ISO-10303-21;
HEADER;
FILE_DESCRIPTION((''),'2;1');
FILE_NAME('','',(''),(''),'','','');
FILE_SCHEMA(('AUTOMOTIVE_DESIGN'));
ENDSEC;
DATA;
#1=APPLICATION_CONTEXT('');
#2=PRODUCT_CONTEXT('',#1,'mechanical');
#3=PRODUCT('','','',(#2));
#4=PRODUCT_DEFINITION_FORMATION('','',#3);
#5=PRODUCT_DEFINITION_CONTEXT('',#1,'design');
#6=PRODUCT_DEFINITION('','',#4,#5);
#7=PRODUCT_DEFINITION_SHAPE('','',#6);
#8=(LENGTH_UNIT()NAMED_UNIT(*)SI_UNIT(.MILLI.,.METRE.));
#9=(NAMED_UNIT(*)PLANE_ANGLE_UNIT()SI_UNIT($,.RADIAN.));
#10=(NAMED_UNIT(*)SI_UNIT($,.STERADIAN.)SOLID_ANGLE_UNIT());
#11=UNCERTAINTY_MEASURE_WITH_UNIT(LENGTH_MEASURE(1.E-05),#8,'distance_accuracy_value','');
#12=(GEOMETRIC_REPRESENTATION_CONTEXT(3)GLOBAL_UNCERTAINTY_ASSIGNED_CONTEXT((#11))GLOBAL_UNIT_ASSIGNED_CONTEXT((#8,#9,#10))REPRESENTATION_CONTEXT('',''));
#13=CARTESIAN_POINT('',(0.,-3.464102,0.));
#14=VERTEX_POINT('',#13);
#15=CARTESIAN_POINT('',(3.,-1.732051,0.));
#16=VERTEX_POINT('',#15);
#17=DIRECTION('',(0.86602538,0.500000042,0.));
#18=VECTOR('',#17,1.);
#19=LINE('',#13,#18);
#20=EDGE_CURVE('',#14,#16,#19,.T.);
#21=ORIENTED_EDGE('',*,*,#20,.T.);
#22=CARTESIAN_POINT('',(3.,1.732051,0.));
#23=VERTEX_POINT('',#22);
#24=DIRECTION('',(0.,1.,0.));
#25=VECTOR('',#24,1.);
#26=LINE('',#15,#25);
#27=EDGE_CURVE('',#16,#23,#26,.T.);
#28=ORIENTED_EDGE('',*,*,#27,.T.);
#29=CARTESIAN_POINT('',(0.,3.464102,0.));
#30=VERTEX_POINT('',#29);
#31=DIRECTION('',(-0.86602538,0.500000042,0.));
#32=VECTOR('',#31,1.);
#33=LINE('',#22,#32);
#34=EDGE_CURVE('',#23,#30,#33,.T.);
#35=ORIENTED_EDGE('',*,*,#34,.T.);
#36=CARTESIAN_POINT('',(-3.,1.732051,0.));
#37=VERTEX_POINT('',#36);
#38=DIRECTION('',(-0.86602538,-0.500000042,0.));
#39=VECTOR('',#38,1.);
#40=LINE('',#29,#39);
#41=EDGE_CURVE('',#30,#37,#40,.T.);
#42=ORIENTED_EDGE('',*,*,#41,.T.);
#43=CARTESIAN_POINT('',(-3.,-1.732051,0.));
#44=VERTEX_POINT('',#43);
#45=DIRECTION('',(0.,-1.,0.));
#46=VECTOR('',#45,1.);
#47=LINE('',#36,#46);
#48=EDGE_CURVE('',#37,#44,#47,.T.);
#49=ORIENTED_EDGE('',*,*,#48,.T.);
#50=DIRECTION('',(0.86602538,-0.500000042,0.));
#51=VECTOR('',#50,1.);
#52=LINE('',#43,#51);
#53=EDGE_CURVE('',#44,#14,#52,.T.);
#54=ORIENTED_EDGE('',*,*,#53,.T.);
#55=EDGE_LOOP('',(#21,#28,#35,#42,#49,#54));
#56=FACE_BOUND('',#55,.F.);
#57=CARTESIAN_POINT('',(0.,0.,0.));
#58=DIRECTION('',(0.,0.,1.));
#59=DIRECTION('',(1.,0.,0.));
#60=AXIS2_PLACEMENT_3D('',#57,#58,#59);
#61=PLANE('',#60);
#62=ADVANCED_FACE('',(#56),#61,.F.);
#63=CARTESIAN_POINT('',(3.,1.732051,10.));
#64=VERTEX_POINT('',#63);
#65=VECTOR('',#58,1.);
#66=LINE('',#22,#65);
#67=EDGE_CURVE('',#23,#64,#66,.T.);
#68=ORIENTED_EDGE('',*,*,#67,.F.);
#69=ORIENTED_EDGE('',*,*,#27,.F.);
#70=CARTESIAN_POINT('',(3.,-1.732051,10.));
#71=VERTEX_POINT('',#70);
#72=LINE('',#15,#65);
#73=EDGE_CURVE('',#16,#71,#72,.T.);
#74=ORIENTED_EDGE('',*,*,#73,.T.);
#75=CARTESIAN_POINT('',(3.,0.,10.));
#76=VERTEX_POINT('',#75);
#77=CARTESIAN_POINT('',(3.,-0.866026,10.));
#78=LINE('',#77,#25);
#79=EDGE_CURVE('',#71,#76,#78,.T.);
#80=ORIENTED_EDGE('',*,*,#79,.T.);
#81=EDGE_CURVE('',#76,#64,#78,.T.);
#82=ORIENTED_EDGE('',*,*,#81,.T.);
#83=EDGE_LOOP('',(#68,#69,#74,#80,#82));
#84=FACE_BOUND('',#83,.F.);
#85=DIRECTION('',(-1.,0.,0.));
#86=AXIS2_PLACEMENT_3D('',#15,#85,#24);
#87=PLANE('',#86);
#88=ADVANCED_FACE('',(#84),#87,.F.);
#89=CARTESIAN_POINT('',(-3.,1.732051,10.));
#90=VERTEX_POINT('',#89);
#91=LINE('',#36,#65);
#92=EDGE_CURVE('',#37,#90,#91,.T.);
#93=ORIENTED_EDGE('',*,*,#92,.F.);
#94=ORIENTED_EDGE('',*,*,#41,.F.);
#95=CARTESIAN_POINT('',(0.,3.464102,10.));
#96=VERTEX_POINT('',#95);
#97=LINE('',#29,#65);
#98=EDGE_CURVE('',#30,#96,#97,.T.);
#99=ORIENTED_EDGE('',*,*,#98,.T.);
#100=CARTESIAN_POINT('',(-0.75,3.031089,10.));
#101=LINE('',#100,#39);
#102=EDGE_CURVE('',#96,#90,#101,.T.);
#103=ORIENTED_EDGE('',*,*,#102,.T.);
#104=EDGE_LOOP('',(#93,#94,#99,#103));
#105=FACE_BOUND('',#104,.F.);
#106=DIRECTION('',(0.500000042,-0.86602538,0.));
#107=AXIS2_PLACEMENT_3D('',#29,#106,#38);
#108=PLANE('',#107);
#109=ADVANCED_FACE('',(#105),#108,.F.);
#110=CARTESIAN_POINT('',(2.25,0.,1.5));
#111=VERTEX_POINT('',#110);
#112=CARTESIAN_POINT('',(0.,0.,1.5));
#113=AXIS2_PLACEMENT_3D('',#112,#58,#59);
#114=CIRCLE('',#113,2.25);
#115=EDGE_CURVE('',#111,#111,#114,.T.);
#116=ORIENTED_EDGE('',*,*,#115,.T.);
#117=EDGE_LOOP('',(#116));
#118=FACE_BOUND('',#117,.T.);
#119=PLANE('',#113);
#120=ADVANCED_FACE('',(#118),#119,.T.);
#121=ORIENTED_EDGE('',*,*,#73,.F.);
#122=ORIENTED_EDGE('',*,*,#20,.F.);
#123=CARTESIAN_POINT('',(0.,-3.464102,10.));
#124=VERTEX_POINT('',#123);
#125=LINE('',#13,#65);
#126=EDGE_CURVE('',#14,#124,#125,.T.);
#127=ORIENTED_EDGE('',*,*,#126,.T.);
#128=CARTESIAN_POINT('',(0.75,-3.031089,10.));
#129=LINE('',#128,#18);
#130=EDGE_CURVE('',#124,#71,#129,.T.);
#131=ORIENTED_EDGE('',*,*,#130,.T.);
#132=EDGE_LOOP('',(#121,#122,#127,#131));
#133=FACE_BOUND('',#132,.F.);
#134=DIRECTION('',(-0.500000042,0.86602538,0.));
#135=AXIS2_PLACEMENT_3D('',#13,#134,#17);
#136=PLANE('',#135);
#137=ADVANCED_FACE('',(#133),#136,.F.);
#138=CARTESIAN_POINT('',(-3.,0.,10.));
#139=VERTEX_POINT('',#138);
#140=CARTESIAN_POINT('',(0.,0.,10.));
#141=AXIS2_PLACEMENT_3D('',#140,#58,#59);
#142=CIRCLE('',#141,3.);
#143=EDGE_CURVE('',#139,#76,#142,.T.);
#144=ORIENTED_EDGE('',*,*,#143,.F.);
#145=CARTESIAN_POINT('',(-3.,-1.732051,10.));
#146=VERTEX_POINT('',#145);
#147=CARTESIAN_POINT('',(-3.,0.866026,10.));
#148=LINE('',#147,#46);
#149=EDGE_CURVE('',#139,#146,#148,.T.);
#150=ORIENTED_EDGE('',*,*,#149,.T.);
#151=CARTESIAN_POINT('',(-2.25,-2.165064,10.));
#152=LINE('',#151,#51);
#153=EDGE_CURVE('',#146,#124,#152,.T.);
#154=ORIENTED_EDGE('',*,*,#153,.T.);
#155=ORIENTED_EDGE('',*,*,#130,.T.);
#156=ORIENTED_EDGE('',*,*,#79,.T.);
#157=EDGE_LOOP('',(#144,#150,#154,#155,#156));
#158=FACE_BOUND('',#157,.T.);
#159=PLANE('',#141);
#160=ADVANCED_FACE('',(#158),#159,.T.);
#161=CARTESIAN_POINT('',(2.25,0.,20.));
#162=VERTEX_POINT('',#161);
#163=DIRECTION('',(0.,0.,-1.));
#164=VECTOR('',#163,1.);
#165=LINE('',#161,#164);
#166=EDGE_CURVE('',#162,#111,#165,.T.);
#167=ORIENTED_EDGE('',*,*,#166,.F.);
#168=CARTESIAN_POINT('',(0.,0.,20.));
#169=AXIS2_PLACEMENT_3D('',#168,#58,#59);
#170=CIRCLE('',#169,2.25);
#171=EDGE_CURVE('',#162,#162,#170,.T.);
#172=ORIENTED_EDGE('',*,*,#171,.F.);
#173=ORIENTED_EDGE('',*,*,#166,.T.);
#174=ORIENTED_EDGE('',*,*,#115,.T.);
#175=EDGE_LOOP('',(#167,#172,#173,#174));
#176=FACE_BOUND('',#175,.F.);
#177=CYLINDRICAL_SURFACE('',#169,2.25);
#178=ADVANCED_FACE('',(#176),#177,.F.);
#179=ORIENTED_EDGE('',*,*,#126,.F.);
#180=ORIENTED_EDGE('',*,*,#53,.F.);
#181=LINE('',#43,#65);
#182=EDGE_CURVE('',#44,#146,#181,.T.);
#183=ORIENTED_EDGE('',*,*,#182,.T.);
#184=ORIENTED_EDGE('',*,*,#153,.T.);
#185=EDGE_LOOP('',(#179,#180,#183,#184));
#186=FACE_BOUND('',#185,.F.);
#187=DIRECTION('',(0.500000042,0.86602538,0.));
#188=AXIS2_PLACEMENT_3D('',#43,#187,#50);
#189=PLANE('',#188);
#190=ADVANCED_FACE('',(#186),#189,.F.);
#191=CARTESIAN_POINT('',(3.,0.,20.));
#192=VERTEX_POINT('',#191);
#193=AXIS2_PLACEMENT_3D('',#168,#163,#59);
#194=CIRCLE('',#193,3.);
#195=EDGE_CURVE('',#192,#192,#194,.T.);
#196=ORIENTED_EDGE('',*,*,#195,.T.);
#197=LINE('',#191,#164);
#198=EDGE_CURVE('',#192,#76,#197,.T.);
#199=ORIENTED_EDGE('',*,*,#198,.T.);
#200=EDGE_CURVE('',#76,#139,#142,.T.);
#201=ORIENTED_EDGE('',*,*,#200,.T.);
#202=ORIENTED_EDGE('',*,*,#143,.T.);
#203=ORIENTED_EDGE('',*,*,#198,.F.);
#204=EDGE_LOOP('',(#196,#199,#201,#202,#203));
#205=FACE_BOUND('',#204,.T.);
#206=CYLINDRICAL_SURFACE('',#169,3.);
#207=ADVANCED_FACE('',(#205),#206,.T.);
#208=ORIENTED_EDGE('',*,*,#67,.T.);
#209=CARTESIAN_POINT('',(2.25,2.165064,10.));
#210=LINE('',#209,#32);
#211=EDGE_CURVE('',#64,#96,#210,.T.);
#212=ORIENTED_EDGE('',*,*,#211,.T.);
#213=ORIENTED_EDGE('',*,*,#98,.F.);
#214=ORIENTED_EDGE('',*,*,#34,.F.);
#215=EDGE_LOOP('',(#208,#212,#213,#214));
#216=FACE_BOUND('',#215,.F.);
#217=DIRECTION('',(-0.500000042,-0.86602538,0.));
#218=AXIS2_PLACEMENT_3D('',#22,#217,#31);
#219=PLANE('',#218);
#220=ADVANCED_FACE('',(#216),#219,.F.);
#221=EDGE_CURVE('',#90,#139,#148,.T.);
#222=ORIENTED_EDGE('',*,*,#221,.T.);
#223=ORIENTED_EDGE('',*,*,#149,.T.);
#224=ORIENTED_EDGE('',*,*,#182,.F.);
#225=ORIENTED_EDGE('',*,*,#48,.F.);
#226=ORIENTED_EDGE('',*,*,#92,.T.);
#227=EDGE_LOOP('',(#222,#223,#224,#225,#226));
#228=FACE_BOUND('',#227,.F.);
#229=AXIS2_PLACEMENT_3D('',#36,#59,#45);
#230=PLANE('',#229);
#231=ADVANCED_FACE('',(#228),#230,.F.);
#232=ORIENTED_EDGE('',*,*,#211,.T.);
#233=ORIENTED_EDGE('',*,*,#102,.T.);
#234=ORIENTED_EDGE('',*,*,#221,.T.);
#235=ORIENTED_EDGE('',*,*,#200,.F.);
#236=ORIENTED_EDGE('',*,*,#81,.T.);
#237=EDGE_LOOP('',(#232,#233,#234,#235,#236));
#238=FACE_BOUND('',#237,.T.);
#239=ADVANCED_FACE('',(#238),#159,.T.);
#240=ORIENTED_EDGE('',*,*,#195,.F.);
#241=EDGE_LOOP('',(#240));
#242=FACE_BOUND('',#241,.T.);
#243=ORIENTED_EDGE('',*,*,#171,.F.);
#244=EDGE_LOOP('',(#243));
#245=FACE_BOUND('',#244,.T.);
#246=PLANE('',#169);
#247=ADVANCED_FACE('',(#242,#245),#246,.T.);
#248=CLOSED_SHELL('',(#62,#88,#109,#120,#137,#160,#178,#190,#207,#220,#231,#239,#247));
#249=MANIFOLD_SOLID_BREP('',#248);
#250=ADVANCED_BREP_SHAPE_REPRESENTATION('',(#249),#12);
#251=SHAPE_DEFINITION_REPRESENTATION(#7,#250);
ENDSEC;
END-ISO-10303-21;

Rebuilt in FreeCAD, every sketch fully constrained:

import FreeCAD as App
import Part
import Sketcher
from FreeCAD import Vector
Q = App.Units.Quantity


def add_polygon(sketch, points):
    """Adds a closed chain of lines whose ends are joined by coincident constraints."""
    first, n = sketch.GeometryCount, len(points)
    for a, b in zip(points, points[1:] + points[:1]):
        sketch.addGeometry(Part.LineSegment(App.Vector(*a, 0), App.Vector(*b, 0)), False)
    for i in range(n):
        sketch.addConstraint(Sketcher.Constraint("Coincident", first + i, 2, first + (i + 1) % n, 1))

doc = App.newDocument("Part")
params = doc.addObject("Spreadsheet::Sheet", "Params")
for row, (alias, value) in enumerate([
    ("pad1_length", "20 mm"),
    ("sketch2_diameter", "6 mm"),
    ("sketch2_width", "8 mm"),
    ("pocket1_length", "10 mm"),
    ("sketch3_diameter", "4.5 mm"),
    ("pocket2_length", "18.5 mm"),
], start=1):
    params.set(f"A{row}", alias)
    params.set(f"B{row}", "=" + value)
    params.setAlias(f"B{row}", alias)

body = doc.addObject("PartDesign::Body", "Body")

sketch1 = body.newObject("Sketcher::SketchObject", "Sketch")
sketch1.AttachmentSupport = (doc.getObject("XY_Plane"), [""])
sketch1.MapMode = "FlatFace"
add_polygon(sketch1, [(0, -3.5), (3, -1.7), (3, 1.7), (0, 3.5), (-3, 1.7), (-3, -1.7)])
sketch1.addConstraint([
    Sketcher.Constraint("Vertical", 1),
    Sketcher.Constraint("Vertical", 4),
    Sketcher.Constraint("Symmetric", 0, 2, 3, 2, -1, 1),
    Sketcher.Constraint("Symmetric", 2, 2, 5, 2, -1, 1),
    Sketcher.Constraint("PointOnObject", 2, 2, -2),
    Sketcher.Constraint("Parallel", 2, 5),
    Sketcher.Constraint("Horizontal", 1, 2, 3, 2),
    Sketcher.Constraint("Angle", 0, Q("30.000003 deg")),
    Sketcher.Constraint("DistanceX", -1, 1, 0, 2, 3.0),
    Sketcher.Constraint("DistanceY", 1, 1, 1, 2, 3.464102),
])
pad1 = body.newObject("PartDesign::Pad", "Pad")
pad1.Profile = sketch1
pad1.setExpression("Length", "Params.pad1_length")

sketch2 = body.newObject("Sketcher::SketchObject", "Sketch001")
sketch2.AttachmentSupport = (doc.getObject("XY_Plane"), [""])
sketch2.MapMode = "FlatFace"
sketch2.AttachmentOffset = App.Placement(Vector(0, 0, 20), App.Rotation())
add_polygon(sketch2, [(-4, 4), (-4, -4), (4, -4), (4, 4)])
sketch2.addGeometry(Part.Circle(Vector(0, 0, 0), Vector(0, 0, 1), 3), False)
sketch2.addConstraint([
    Sketcher.Constraint("Vertical", 0),
    Sketcher.Constraint("Horizontal", 1),
    Sketcher.Constraint("Vertical", 2),
    Sketcher.Constraint("Horizontal", 3),
    Sketcher.Constraint("Coincident", 4, 3, -1, 1),
    Sketcher.Constraint("Symmetric", 0, 2, 2, 2, -1, 1),
    Sketcher.Constraint("Equal", 3, 0),
    Sketcher.Constraint("Diameter", 4, 6.0),
    Sketcher.Constraint("DistanceX", 1, 1, 1, 2, 8.0),
])
sketch2.setExpression("Constraints[11]", "Params.sketch2_diameter")
sketch2.setExpression("Constraints[12]", "Params.sketch2_width")
pocket1 = body.newObject("PartDesign::Pocket", "Pocket")
pocket1.Profile = sketch2
pocket1.setExpression("Length", "Params.pocket1_length")

sketch3 = body.newObject("Sketcher::SketchObject", "Sketch002")
sketch3.AttachmentSupport = (doc.getObject("XY_Plane"), [""])
sketch3.MapMode = "FlatFace"
sketch3.AttachmentOffset = App.Placement(Vector(0, 0, 20), App.Rotation())
sketch3.addGeometry(Part.Circle(Vector(0, 0, 0), Vector(0, 0, 1), 2.2), False)
sketch3.addConstraint([
    Sketcher.Constraint("Coincident", 0, 3, -1, 1),
    Sketcher.Constraint("Diameter", 0, 4.5),
])
sketch3.setExpression("Constraints[1]", "Params.sketch3_diameter")
pocket2 = body.newObject("PartDesign::Pocket", "Pocket001")
pocket2.Profile = sketch3
pocket2.setExpression("Length", "Params.pocket2_length")

doc.recompute()
